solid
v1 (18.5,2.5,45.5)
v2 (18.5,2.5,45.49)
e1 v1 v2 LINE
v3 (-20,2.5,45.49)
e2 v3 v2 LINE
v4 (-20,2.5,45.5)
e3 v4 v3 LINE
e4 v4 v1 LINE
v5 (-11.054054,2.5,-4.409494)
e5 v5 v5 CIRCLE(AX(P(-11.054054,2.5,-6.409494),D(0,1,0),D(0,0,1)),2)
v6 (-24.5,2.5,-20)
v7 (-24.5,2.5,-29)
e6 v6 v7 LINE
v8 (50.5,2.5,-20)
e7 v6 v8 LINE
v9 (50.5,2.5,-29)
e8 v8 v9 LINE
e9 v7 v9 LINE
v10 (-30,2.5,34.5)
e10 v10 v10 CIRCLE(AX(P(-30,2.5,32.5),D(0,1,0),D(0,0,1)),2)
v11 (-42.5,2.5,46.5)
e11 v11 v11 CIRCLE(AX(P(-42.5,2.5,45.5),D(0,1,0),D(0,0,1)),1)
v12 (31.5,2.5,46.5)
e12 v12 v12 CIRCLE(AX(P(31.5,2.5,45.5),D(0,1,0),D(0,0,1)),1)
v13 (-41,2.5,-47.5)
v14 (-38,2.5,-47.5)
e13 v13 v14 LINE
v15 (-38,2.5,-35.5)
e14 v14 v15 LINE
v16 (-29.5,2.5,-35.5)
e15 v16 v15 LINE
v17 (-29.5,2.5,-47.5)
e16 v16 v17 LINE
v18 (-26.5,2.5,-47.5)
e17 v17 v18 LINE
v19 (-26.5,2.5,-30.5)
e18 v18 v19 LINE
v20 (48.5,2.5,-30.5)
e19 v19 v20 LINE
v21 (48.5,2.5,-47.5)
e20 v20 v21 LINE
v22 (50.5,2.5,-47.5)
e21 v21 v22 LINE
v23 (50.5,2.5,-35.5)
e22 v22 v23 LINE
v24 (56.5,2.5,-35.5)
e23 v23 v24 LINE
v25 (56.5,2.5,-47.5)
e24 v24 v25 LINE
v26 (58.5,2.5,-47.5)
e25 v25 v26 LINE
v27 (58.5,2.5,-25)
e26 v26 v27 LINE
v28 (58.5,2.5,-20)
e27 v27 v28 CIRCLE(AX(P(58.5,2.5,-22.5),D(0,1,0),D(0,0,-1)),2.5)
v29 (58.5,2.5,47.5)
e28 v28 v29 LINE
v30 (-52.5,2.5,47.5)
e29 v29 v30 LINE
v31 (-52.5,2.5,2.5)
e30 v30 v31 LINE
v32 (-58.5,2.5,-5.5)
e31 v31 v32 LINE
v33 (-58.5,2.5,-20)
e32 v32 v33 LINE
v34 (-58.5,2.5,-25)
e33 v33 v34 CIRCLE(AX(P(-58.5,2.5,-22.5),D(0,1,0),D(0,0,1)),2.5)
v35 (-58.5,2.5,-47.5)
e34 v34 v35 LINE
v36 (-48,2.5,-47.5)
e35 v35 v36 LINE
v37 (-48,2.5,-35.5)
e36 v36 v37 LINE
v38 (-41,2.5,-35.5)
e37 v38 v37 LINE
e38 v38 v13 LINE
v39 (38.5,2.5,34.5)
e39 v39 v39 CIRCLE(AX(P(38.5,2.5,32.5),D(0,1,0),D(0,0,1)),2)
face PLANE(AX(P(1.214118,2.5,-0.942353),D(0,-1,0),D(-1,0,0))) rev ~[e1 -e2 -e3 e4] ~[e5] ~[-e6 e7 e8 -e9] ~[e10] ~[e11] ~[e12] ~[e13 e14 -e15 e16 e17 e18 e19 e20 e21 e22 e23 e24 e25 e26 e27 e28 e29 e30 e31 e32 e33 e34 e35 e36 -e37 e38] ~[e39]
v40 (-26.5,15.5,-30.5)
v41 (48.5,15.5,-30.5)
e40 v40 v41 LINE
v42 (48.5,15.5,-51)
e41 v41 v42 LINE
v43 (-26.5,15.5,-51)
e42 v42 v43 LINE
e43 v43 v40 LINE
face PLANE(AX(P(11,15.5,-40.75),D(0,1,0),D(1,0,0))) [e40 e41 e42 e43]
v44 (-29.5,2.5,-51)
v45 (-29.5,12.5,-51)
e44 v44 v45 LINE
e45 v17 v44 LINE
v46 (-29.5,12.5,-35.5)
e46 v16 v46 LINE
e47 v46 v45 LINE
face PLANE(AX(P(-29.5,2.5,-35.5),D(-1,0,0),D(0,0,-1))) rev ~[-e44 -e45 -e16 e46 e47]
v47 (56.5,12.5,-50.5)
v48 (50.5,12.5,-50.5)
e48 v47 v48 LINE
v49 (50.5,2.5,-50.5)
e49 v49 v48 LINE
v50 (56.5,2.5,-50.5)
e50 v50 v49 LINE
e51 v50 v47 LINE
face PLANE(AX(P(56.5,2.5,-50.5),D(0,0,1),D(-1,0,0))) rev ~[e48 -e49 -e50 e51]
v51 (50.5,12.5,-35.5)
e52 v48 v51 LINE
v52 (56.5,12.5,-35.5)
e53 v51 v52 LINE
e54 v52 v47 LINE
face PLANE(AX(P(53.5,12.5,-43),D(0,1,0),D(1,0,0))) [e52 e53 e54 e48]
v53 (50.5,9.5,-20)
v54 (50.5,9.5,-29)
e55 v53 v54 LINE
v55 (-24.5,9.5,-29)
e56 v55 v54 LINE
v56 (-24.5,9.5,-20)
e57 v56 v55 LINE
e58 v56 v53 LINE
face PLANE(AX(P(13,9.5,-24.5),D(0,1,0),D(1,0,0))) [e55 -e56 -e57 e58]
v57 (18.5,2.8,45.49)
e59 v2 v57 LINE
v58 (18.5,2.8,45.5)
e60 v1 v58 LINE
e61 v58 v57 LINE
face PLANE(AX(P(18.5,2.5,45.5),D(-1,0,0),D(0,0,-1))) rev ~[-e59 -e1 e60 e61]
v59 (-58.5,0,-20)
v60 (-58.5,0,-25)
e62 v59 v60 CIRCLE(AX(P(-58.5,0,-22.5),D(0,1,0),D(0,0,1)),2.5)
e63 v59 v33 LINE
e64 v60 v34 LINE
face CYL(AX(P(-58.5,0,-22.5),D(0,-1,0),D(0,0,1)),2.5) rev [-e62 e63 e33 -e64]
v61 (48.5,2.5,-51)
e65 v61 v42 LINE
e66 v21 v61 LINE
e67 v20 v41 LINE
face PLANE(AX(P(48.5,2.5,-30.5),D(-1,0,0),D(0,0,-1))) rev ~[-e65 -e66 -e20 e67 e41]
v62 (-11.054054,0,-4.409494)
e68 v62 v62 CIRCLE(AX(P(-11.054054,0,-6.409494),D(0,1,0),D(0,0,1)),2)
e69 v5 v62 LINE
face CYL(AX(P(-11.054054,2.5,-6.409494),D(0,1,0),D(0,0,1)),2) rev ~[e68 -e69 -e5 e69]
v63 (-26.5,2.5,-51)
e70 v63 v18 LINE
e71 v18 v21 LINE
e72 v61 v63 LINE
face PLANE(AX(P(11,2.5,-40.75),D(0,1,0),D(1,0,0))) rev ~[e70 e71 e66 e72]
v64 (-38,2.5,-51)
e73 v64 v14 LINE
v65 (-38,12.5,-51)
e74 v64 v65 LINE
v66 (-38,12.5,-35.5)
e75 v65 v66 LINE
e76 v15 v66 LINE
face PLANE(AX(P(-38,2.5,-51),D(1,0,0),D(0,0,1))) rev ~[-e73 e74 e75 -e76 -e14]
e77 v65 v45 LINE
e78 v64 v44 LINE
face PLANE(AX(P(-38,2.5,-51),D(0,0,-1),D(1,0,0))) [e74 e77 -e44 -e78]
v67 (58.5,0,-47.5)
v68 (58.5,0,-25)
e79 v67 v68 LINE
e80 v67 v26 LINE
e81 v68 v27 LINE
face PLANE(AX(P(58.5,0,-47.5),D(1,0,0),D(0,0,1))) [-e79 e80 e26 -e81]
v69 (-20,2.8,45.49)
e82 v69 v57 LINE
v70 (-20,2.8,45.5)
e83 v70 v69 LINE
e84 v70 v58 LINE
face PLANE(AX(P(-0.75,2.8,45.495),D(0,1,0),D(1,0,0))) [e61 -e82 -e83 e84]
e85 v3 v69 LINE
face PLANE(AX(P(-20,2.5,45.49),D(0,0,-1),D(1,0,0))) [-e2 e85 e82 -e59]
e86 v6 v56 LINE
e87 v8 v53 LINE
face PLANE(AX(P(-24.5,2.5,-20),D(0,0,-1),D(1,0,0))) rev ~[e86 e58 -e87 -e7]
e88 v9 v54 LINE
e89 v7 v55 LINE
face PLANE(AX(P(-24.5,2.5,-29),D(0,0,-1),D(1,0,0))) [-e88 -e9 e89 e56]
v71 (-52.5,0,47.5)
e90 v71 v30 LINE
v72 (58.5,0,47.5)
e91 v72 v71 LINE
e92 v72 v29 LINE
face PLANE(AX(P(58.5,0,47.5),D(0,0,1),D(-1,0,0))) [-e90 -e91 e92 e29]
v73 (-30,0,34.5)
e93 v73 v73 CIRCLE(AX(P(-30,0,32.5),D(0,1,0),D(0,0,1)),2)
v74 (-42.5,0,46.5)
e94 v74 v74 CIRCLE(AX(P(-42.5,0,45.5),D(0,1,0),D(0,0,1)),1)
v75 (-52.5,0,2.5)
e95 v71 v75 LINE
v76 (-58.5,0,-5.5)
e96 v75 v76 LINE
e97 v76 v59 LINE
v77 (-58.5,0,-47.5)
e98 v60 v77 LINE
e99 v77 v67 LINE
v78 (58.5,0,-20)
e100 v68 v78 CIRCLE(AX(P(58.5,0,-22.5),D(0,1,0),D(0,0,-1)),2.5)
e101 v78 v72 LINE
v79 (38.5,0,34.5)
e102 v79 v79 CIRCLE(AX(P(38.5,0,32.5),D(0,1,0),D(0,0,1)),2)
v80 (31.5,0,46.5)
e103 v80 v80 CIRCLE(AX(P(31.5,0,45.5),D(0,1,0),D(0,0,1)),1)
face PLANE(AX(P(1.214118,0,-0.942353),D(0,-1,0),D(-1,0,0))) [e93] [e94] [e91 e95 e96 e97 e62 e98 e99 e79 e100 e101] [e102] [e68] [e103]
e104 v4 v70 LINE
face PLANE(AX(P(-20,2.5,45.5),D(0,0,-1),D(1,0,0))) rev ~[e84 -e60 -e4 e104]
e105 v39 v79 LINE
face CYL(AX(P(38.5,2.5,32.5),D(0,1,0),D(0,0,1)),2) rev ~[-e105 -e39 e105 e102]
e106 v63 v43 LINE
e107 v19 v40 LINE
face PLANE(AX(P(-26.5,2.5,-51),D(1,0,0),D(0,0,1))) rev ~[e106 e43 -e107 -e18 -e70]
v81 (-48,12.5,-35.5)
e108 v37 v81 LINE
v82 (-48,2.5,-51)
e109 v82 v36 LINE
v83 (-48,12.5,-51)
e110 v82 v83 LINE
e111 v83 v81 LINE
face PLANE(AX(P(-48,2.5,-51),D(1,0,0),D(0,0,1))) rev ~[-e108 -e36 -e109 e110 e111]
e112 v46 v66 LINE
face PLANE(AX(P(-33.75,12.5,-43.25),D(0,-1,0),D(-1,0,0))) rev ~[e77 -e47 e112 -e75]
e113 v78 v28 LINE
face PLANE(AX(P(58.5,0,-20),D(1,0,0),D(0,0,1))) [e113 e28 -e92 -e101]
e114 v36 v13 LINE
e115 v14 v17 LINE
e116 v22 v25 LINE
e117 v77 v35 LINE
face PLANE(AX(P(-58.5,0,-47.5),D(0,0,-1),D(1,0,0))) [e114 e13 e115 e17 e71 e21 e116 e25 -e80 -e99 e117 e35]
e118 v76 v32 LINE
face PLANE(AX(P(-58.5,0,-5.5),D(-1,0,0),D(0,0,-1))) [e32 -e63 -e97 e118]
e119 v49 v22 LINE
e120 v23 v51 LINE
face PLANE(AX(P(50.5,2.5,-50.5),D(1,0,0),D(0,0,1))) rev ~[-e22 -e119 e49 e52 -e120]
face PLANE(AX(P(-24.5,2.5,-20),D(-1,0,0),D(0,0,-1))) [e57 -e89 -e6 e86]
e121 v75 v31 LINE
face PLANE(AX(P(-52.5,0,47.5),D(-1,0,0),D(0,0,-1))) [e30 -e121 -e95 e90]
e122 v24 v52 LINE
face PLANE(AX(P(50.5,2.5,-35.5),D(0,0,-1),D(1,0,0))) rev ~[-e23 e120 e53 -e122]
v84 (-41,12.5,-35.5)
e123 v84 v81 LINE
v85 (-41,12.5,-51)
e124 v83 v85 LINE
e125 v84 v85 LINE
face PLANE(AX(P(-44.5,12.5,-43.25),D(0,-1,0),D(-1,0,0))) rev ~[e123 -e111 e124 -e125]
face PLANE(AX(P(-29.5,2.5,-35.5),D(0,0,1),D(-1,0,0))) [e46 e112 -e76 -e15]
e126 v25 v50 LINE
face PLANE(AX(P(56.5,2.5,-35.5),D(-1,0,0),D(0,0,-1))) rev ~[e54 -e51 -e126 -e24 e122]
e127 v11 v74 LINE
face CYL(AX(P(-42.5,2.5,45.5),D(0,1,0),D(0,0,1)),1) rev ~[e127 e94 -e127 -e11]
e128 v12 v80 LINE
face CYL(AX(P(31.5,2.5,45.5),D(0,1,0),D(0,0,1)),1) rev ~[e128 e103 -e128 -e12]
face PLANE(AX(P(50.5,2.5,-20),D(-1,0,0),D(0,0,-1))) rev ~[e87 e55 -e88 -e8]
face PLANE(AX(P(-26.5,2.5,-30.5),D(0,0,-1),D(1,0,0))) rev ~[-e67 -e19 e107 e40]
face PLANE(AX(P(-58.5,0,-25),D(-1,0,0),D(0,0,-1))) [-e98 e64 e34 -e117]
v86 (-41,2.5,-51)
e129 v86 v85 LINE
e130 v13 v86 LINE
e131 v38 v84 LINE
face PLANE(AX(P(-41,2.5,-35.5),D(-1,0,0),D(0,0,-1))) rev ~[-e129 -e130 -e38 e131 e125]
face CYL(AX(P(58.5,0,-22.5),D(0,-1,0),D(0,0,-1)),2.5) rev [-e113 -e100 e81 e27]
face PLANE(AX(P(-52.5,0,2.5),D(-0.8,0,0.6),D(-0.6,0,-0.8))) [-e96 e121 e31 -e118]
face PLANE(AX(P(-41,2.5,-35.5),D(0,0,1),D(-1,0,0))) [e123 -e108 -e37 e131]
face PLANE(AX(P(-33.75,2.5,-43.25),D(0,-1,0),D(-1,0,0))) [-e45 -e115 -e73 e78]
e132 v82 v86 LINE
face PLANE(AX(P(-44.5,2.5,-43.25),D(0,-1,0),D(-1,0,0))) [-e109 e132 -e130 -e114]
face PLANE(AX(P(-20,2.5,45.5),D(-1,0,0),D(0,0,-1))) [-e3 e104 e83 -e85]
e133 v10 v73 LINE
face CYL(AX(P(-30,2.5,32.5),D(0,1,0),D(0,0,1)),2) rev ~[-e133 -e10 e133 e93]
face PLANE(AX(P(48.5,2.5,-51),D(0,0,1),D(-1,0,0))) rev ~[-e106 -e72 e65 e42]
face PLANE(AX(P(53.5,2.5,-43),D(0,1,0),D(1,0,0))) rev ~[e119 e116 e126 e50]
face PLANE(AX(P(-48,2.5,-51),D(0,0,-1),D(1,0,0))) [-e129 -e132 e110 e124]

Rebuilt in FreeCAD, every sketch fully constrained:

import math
import FreeCAD as App
import Part
import Sketcher
Q = App.Units.Quantity


def add_polygon(sketch, points):
    """Adds a closed chain of lines whose ends are joined by coincident constraints."""
    first, n = sketch.GeometryCount, len(points)
    for a, b in zip(points, points[1:] + points[:1]):
        sketch.addGeometry(Part.LineSegment(App.Vector(*a, 0), App.Vector(*b, 0)), False)
    for i in range(n):
        sketch.addConstraint(Sketcher.Constraint("Coincident", first + i, 2, first + (i + 1) % n, 1))

doc = App.newDocument("Part")
params = doc.addObject("Spreadsheet::Sheet", "Params")
for row, (alias, value) in enumerate([
    ("sketch1_radius", "2.5 mm"),
    ("sketch1_width", "117 mm"),
    ("sketch1_width2", "111 mm"),
    ("sketch1_height", "45 mm"),
    ("sketch1_length", "10 mm"),
    ("pad1_length", "2.5 mm"),
    ("sketch2_diameter", "4 mm"),
    ("sketch2_diameter2", "2 mm"),
    ("pocket1_length", "5 mm"),
    ("sketch3_width", "75 mm"),
    ("sketch3_height", "20.5 mm"),
    ("pad2_length", "13 mm"),
    ("sketch4_width", "75 mm"),
    ("sketch4_height", "9 mm"),
    ("pad3_length", "7 mm"),
    ("sketch5_width", "6 mm"),
    ("sketch5_width2", "7 mm"),
    ("sketch5_height", "15 mm"),
    ("sketch5_width3", "8.5 mm"),
    ("sketch5_height2", "15.5 mm"),
    ("pad4_length", "10 mm"),
    ("sketch6_width", "38.5 mm"),
    ("sketch6_height", "0.01 mm"),
    ("pad5_length", "0.3 mm"),
], start=1):
    params.set(f"A{row}", alias)
    params.set(f"B{row}", "=" + value)
    params.setAlias(f"B{row}", alias)

body = doc.addObject("PartDesign::Body", "Body")

# Sketch on XZ plane
sketch1 = body.newObject("Sketcher::SketchObject", "Sketch")
sketch1.AttachmentSupport = (doc.getObject("XZ_Plane"), [""])
sketch1.MapMode = "FlatFace"
sketch1.addGeometry(Part.LineSegment(App.Vector(58.5, -47.5, 0), App.Vector(-58.5, -47.5, 0)), False)
sketch1.addGeometry(Part.LineSegment(App.Vector(-58.5, -47.5, 0), App.Vector(-58.5, -25, 0)), False)
sketch1.addGeometry(Part.ArcOfCircle(Part.Circle(App.Vector(-58.5, -22.5, 0), App.Vector(0, 0, 1), 2.5), math.radians(-90), math.radians(90)), False)
sketch1.addGeometry(Part.LineSegment(App.Vector(-58.5, -20, 0), App.Vector(-58.5, -5.5, 0)), False)
sketch1.addGeometry(Part.LineSegment(App.Vector(-58.5, -5.5, 0), App.Vector(-52.5, 2.5, 0)), False)
sketch1.addGeometry(Part.LineSegment(App.Vector(-52.5, 2.5, 0), App.Vector(-52.5, 47.5, 0)), False)
sketch1.addGeometry(Part.LineSegment(App.Vector(-52.5, 47.5, 0), App.Vector(58.5, 47.5, 0)), False)
sketch1.addGeometry(Part.LineSegment(App.Vector(58.5, 47.5, 0), App.Vector(58.5, -20, 0)), False)
sketch1.addGeometry(Part.ArcOfCircle(Part.Circle(App.Vector(58.5, -22.5, 0), App.Vector(0, 0, 1), 2.5), math.radians(90), math.radians(270)), False)
sketch1.addGeometry(Part.LineSegment(App.Vector(58.5, -25, 0), App.Vector(58.5, -47.5, 0)), False)
sketch1.addConstraint(Sketcher.Constraint("Coincident", 0, 2, 1, 1))
sketch1.addConstraint(Sketcher.Constraint("Coincident", 1, 2, 2, 1))
sketch1.addConstraint(Sketcher.Constraint("Coincident", 2, 2, 3, 1))
sketch1.addConstraint(Sketcher.Constraint("Coincident", 3, 2, 4, 1))
sketch1.addConstraint(Sketcher.Constraint("Coincident", 4, 2, 5, 1))
sketch1.addConstraint(Sketcher.Constraint("Coincident", 5, 2, 6, 1))
sketch1.addConstraint(Sketcher.Constraint("Coincident", 6, 2, 7, 1))
sketch1.addConstraint(Sketcher.Constraint("Coincident", 7, 2, 8, 1))
sketch1.addConstraint(Sketcher.Constraint("Coincident", 8, 2, 9, 1))
sketch1.addConstraint(Sketcher.Constraint("Coincident", 9, 2, 0, 1))
sketch1.addConstraint(Sketcher.Constraint("Horizontal", 0))
sketch1.addConstraint(Sketcher.Constraint("Vertical", 1))
sketch1.addConstraint(Sketcher.Constraint("Vertical", 3))
sketch1.addConstraint(Sketcher.Constraint("Vertical", 5))
sketch1.addConstraint(Sketcher.Constraint("Horizontal", 6))
sketch1.addConstraint(Sketcher.Constraint("Vertical", 7))
sketch1.addConstraint(Sketcher.Constraint("Vertical", 9))
sketch1.addConstraint(Sketcher.Constraint("Equal", 2, 8))
sketch1.addConstraint(Sketcher.Constraint("Symmetric", 0, 2, 6, 2, -1, 1))
sketch1.addConstraint(Sketcher.Constraint("Symmetric", 2, 3, 8, 3, -2))
sketch1.addConstraint(Sketcher.Constraint("Vertical", 2, 3, 0, 2))
sketch1.addConstraint(Sketcher.Constraint("Vertical", 1, 2, 2, 2))
sketch1.addConstraint(Sketcher.Constraint("Vertical", 7, 2, 8, 2))
sketch1.addConstraint(Sketcher.Constraint("Radius", 2, Q("2.5 mm")))
sketch1.addConstraint(Sketcher.Constraint("DistanceX", 0, 2, 0, 1, Q("117 mm")))
sketch1.addConstraint(Sketcher.Constraint("DistanceX", 6, 1, 6, 2, Q("111 mm")))
sketch1.addConstraint(Sketcher.Constraint("DistanceY", 5, 1, 5, 2, Q("45 mm")))
sketch1.addConstraint(Sketcher.Constraint("Distance", 4, Q("10 mm")))
sketch1.addConstraint(Sketcher.Constraint("DistanceY", 1, 1, 1, 2, Q("22.5 mm")))
sketch1.addConstraint(Sketcher.Constraint("DistanceY", 3, 1, 3, 2, Q("14.5 mm")))
sketch1.setExpression("Constraints[23]", "Params.sketch1_radius")
sketch1.setExpression("Constraints[24]", "Params.sketch1_width")
sketch1.setExpression("Constraints[25]", "Params.sketch1_width2")
sketch1.setExpression("Constraints[26]", "Params.sketch1_height")
sketch1.setExpression("Constraints[27]", "Params.sketch1_length")
pad1 = body.newObject("PartDesign::Pad", "Pad")
pad1.Profile = sketch1
pad1.setExpression("Length", "Params.pad1_length")
pad1.Reversed = True

# Sketch on XZ plane
sketch2 = body.newObject("Sketcher::SketchObject", "Sketch001")
sketch2.AttachmentSupport = (doc.getObject("XZ_Plane"), [""])
sketch2.MapMode = "FlatFace"
sketch2.AttachmentOffset = App.Placement(App.Vector(0, 0, -2.5), App.Rotation())
sketch2.addGeometry(Part.Circle(App.Vector(-11.054054, -6.409494, 0), App.Vector(0, 0, 1), 2), False)
sketch2.addGeometry(Part.Circle(App.Vector(-30, 32.5, 0), App.Vector(0, 0, 1), 2), False)
sketch2.addGeometry(Part.Circle(App.Vector(38.5, 32.5, 0), App.Vector(0, 0, 1), 2), False)
sketch2.addGeometry(Part.Circle(App.Vector(-42.5, 45.5, 0), App.Vector(0, 0, 1), 1), False)
sketch2.addGeometry(Part.Circle(App.Vector(31.5, 45.5, 0), App.Vector(0, 0, 1), 1), False)
sketch2.addConstraint(Sketcher.Constraint("Equal", 0, 1))
sketch2.addConstraint(Sketcher.Constraint("Equal", 1, 2))
sketch2.addConstraint(Sketcher.Constraint("Equal", 3, 4))
sketch2.addConstraint(Sketcher.Constraint("Horizontal", 1, 3, 2, 3))
sketch2.addConstraint(Sketcher.Constraint("Horizontal", 3, 3, 4, 3))
sketch2.addConstraint(Sketcher.Constraint("Diameter", 0, Q("4 mm")))
sketch2.addConstraint(Sketcher.Constraint("Diameter", 3, Q("2 mm")))
sketch2.addConstraint(Sketcher.Constraint("DistanceX", 1, 3, -1, 1, Q("30 mm")))
sketch2.addConstraint(Sketcher.Constraint("DistanceY", 1, 3, 3, 3, Q("13 mm")))
sketch2.addConstraint(Sketcher.Constraint("DistanceX", 3, 3, 2, 3, Q("81 mm")))
sketch2.addConstraint(Sketcher.Constraint("DistanceX", 4, 3, 2, 3, Q("7 mm")))
sketch2.addConstraint(Sketcher.Constraint("DistanceY", -1, 1, 1, 3, Q("32.5 mm")))
sketch2.addConstraint(Sketcher.Constraint("DistanceX", -1, 1, 2, 3, Q("38.5 mm")))
sketch2.addConstraint(Sketcher.Constraint("DistanceX", 0, 3, -1, 1, Q("11.054054 mm")))
sketch2.addConstraint(Sketcher.Constraint("DistanceY", 0, 3, -1, 1, Q("6.409494 mm")))
sketch2.setExpression("Constraints[5]", "Params.sketch2_diameter")
sketch2.setExpression("Constraints[6]", "Params.sketch2_diameter2")
pocket1 = body.newObject("PartDesign::Pocket", "Pocket")
pocket1.Profile = sketch2
pocket1.setExpression("Length", "Params.pocket1_length")
pocket1.Reversed = True

# Sketch on XZ plane
sketch3 = body.newObject("Sketcher::SketchObject", "Sketch002")
sketch3.AttachmentSupport = (doc.getObject("XZ_Plane"), [""])
sketch3.MapMode = "FlatFace"
sketch3.AttachmentOffset = App.Placement(App.Vector(0, 0, -2.5), App.Rotation())
add_polygon(sketch3, [(-26.5, -30.5), (48.5, -30.5), (48.5, -51), (-26.5, -51)])  # lines 0-3
sketch3.addConstraint(Sketcher.Constraint("Horizontal", 0))
sketch3.addConstraint(Sketcher.Constraint("Vertical", 1))
sketch3.addConstraint(Sketcher.Constraint("Horizontal", 2))
sketch3.addConstraint(Sketcher.Constraint("Vertical", 3))
sketch3.addConstraint(Sketcher.Constraint("DistanceX", 0, 1, 0, 2, Q("75 mm")))
sketch3.addConstraint(Sketcher.Constraint("DistanceY", 1, 2, 1, 1, Q("20.5 mm")))
sketch3.addConstraint(Sketcher.Constraint("DistanceY", 1, 2, -1, 1, Q("51 mm")))
sketch3.addConstraint(Sketcher.Constraint("DistanceX", -1, 1, 0, 2, Q("48.5 mm")))
sketch3.setExpression("Constraints[8]", "Params.sketch3_width")
sketch3.setExpression("Constraints[9]", "Params.sketch3_height")
pad2 = body.newObject("PartDesign::Pad", "Pad001")
pad2.Profile = sketch3
pad2.setExpression("Length", "Params.pad2_length")
pad2.Reversed = True

# Sketch on XZ plane
sketch4 = body.newObject("Sketcher::SketchObject", "Sketch003")
sketch4.AttachmentSupport = (doc.getObject("XZ_Plane"), [""])
sketch4.MapMode = "FlatFace"
sketch4.AttachmentOffset = App.Placement(App.Vector(0, 0, -2.5), App.Rotation())
add_polygon(sketch4, [(-24.5, -29), (-24.5, -20), (50.5, -20), (50.5, -29)])  # lines 0-3
sketch4.addConstraint(Sketcher.Constraint("Vertical", 0))
sketch4.addConstraint(Sketcher.Constraint("Horizontal", 1))
sketch4.addConstraint(Sketcher.Constraint("Vertical", 2))
sketch4.addConstraint(Sketcher.Constraint("Horizontal", 3))
sketch4.addConstraint(Sketcher.Constraint("DistanceX", 1, 1, 1, 2, Q("75 mm")))
sketch4.addConstraint(Sketcher.Constraint("DistanceY", 0, 1, 0, 2, Q("9 mm")))
sketch4.addConstraint(Sketcher.Constraint("DistanceY", 0, 2, -1, 1, Q("20 mm")))
sketch4.addConstraint(Sketcher.Constraint("DistanceX", 0, 2, -1, 1, Q("24.5 mm")))
sketch4.setExpression("Constraints[8]", "Params.sketch4_width")
sketch4.setExpression("Constraints[9]", "Params.sketch4_height")
pad3 = body.newObject("PartDesign::Pad", "Pad002")
pad3.Profile = sketch4
pad3.setExpression("Length", "Params.pad3_length")
pad3.Reversed = True

# Sketch on XZ plane
sketch5 = body.newObject("Sketcher::SketchObject", "Sketch004")
sketch5.AttachmentSupport = (doc.getObject("XZ_Plane"), [""])
sketch5.MapMode = "FlatFace"
sketch5.AttachmentOffset = App.Placement(App.Vector(0, 0, -2.5), App.Rotation())
add_polygon(sketch5, [(50.5, -35.5), (56.5, -35.5), (56.5, -50.5), (50.5, -50.5)])  # lines 0-3
add_polygon(sketch5, [(-29.5, -35.5), (-29.5, -51), (-38, -51), (-38, -35.5)])  # lines 4-7
add_polygon(sketch5, [(-48, -35.5), (-41, -35.5), (-41, -51), (-48, -51)])  # lines 8-11
sketch5.addConstraint(Sketcher.Constraint("Horizontal", 0))
sketch5.addConstraint(Sketcher.Constraint("Vertical", 1))
sketch5.addConstraint(Sketcher.Constraint("Horizontal", 2))
sketch5.addConstraint(Sketcher.Constraint("Vertical", 3))
sketch5.addConstraint(Sketcher.Constraint("Vertical", 4))
sketch5.addConstraint(Sketcher.Constraint("Horizontal", 5))
sketch5.addConstraint(Sketcher.Constraint("Vertical", 6))
sketch5.addConstraint(Sketcher.Constraint("Horizontal", 7))
sketch5.addConstraint(Sketcher.Constraint("Horizontal", 8))
sketch5.addConstraint(Sketcher.Constraint("Vertical", 9))
sketch5.addConstraint(Sketcher.Constraint("Horizontal", 10))
sketch5.addConstraint(Sketcher.Constraint("Vertical", 11))
sketch5.addConstraint(Sketcher.Constraint("Horizontal", 3, 2, 6, 2))
sketch5.addConstraint(Sketcher.Constraint("Horizontal", 7, 2, 8, 2))
sketch5.addConstraint(Sketcher.Constraint("Horizontal", 5, 2, 9, 2))
sketch5.addConstraint(Sketcher.Constraint("DistanceX", 0, 1, 0, 2, Q("6 mm")))
sketch5.addConstraint(Sketcher.Constraint("DistanceX", 8, 1, 8, 2, Q("7 mm")))
sketch5.addConstraint(Sketcher.Constraint("DistanceY", 1, 2, 1, 1, Q("15 mm")))
sketch5.addConstraint(Sketcher.Constraint("DistanceX", 5, 2, 5, 1, Q("8.5 mm")))
sketch5.addConstraint(Sketcher.Constraint("DistanceY", 4, 2, 4, 1, Q("15.5 mm")))
sketch5.addConstraint(Sketcher.Constraint("DistanceY", 4, 2, -1, 1, Q("51 mm")))
sketch5.addConstraint(Sketcher.Constraint("DistanceX", 5, 2, -1, 1, Q("38 mm")))
sketch5.addConstraint(Sketcher.Constraint("DistanceX", 8, 2, -1, 1, Q("41 mm")))
sketch5.addConstraint(Sketcher.Constraint("DistanceX", 4, 2, 2, 2, Q("80 mm")))
sketch5.setExpression("Constraints[27]", "Params.sketch5_width")
sketch5.setExpression("Constraints[28]", "Params.sketch5_width2")
sketch5.setExpression("Constraints[29]", "Params.sketch5_height")
sketch5.setExpression("Constraints[30]", "Params.sketch5_width3")
sketch5.setExpression("Constraints[31]", "Params.sketch5_height2")
pad4 = body.newObject("PartDesign::Pad", "Pad003")
pad4.Profile = sketch5
pad4.setExpression("Length", "Params.pad4_length")
pad4.Reversed = True

# Sketch on XZ plane
sketch6 = body.newObject("Sketcher::SketchObject", "Sketch005")
sketch6.AttachmentSupport = (doc.getObject("XZ_Plane"), [""])
sketch6.MapMode = "FlatFace"
sketch6.AttachmentOffset = App.Placement(App.Vector(0, 0, -2.5), App.Rotation())
add_polygon(sketch6, [(-20, 45.49), (-20, 45.5), (18.5, 45.5), (18.5, 45.49)])  # lines 0-3
sketch6.addConstraint(Sketcher.Constraint("Vertical", 0))
sketch6.addConstraint(Sketcher.Constraint("Horizontal", 1))
sketch6.addConstraint(Sketcher.Constraint("Vertical", 2))
sketch6.addConstraint(Sketcher.Constraint("Horizontal", 3))
sketch6.addConstraint(Sketcher.Constraint("DistanceX", 1, 1, 1, 2, Q("38.5 mm")))
sketch6.addConstraint(Sketcher.Constraint("DistanceX", 0, 2, -1, 1, Q("20 mm")))
sketch6.addConstraint(Sketcher.Constraint("DistanceY", 0, 1, 0, 2, Q("0.01 mm")))
sketch6.addConstraint(Sketcher.Constraint("DistanceY", -1, 1, 0, 2, Q("45.5 mm")))
sketch6.setExpression("Constraints[8]", "Params.sketch6_width")
sketch6.setExpression("Constraints[10]", "Params.sketch6_height")
pad5 = body.newObject("PartDesign::Pad", "Pad004")
pad5.Profile = sketch6
pad5.setExpression("Length", "Params.pad5_length")
pad5.Reversed = True

doc.recompute()
